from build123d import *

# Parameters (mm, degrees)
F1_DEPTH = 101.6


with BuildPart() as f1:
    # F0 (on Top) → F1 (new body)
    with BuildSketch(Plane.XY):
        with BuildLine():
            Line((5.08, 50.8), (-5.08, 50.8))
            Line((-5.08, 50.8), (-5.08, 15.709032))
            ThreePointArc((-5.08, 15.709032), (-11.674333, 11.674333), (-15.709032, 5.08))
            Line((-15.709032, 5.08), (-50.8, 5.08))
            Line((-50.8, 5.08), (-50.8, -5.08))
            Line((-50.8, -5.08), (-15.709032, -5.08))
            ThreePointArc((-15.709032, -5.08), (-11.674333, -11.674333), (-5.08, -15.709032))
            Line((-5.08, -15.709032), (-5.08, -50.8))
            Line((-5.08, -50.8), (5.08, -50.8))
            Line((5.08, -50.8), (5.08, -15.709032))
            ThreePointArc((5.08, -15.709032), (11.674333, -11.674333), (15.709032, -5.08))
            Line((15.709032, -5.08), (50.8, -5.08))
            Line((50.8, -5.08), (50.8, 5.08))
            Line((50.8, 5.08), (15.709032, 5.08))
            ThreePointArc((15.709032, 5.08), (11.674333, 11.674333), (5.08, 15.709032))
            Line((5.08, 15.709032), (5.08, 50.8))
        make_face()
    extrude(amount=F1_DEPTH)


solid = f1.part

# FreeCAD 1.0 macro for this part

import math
import FreeCAD as App
import Part
import Sketcher

V = App.Vector
Q = App.Units.Quantity

doc = App.newDocument("Part")
body = doc.addObject("PartDesign::Body", "Body")

# Sketch on XY plane
sketch1 = body.newObject("Sketcher::SketchObject", "Sketch")
sketch1.AttachmentSupport = (doc.getObject("XY_Plane"), [""])
sketch1.MapMode = "FlatFace"
sketch1.addGeometry(Part.LineSegment(V(5.08, 50.8, 0), V(-5.08, 50.8, 0)), False)
sketch1.addGeometry(Part.LineSegment(V(-5.08, 50.8, 0), V(-5.08, 15.709032, 0)), False)
sketch1.addGeometry(Part.ArcOfCircle(Part.Circle(V(-0.000003, 0.000003, 0), V(0, 0, 1), 16.509996), math.radians(107.920207), math.radians(162.079793)), False)
sketch1.addGeometry(Part.LineSegment(V(-15.709032, 5.08, 0), V(-50.8, 5.08, 0)), False)
sketch1.addGeometry(Part.LineSegment(V(-50.8, 5.08, 0), V(-50.8, -5.08, 0)), False)
sketch1.addGeometry(Part.LineSegment(V(-50.8, -5.08, 0), V(-15.709032, -5.08, 0)), False)
sketch1.addGeometry(Part.ArcOfCircle(Part.Circle(V(-0.000003, -0.000003, 0), V(0, 0, 1), 16.509996), math.radians(-162.079793), math.radians(-107.920207)), False)
sketch1.addGeometry(Part.LineSegment(V(-5.08, -15.709032, 0), V(-5.08, -50.8, 0)), False)
sketch1.addGeometry(Part.LineSegment(V(-5.08, -50.8, 0), V(5.08, -50.8, 0)), False)
sketch1.addGeometry(Part.LineSegment(V(5.08, -50.8, 0), V(5.08, -15.709032, 0)), False)
sketch1.addGeometry(Part.ArcOfCircle(Part.Circle(V(0.000003, -0.000003, 0), V(0, 0, 1), 16.509996), math.radians(-72.079793), math.radians(-17.920207)), False)
sketch1.addGeometry(Part.LineSegment(V(15.709032, -5.08, 0), V(50.8, -5.08, 0)), False)
sketch1.addGeometry(Part.LineSegment(V(50.8, -5.08, 0), V(50.8, 5.08, 0)), False)
sketch1.addGeometry(Part.LineSegment(V(50.8, 5.08, 0), V(15.709032, 5.08, 0)), False)
sketch1.addGeometry(Part.ArcOfCircle(Part.Circle(V(0.000003, 0.000003, 0), V(0, 0, 1), 16.509996), math.radians(17.920207), math.radians(72.079793)), False)
sketch1.addGeometry(Part.LineSegment(V(5.08, 15.709032, 0), V(5.08, 50.8, 0)), False)
sketch1.addConstraint(Sketcher.Constraint("Coincident", 0, 2, 1, 1))
sketch1.addConstraint(Sketcher.Constraint("Coincident", 1, 2, 2, 1))
sketch1.addConstraint(Sketcher.Constraint("Coincident", 2, 2, 3, 1))
sketch1.addConstraint(Sketcher.Constraint("Coincident", 3, 2, 4, 1))
sketch1.addConstraint(Sketcher.Constraint("Coincident", 4, 2, 5, 1))
sketch1.addConstraint(Sketcher.Constraint("Coincident", 5, 2, 6, 1))
sketch1.addConstraint(Sketcher.Constraint("Coincident", 6, 2, 7, 1))
sketch1.addConstraint(Sketcher.Constraint("Coincident", 7, 2, 8, 1))
sketch1.addConstraint(Sketcher.Constraint("Coincident", 8, 2, 9, 1))
sketch1.addConstraint(Sketcher.Constraint("Coincident", 9, 2, 10, 1))
sketch1.addConstraint(Sketcher.Constraint("Coincident", 10, 2, 11, 1))
sketch1.addConstraint(Sketcher.Constraint("Coincident", 11, 2, 12, 1))
sketch1.addConstraint(Sketcher.Constraint("Coincident", 12, 2, 13, 1))
sketch1.addConstraint(Sketcher.Constraint("Coincident", 13, 2, 14, 1))
sketch1.addConstraint(Sketcher.Constraint("Coincident", 14, 2, 15, 1))
sketch1.addConstraint(Sketcher.Constraint("Coincident", 15, 2, 0, 1))
sketch1.addConstraint(Sketcher.Constraint("Horizontal", 0))
sketch1.addConstraint(Sketcher.Constraint("Vertical", 1))
sketch1.addConstraint(Sketcher.Constraint("Horizontal", 3))
sketch1.addConstraint(Sketcher.Constraint("Vertical", 4))
sketch1.addConstraint(Sketcher.Constraint("Horizontal", 5))
sketch1.addConstraint(Sketcher.Constraint("Vertical", 7))
sketch1.addConstraint(Sketcher.Constraint("Horizontal", 8))
sketch1.addConstraint(Sketcher.Constraint("Vertical", 9))
sketch1.addConstraint(Sketcher.Constraint("Horizontal", 11))
sketch1.addConstraint(Sketcher.Constraint("Vertical", 12))
sketch1.addConstraint(Sketcher.Constraint("Horizontal", 13))
sketch1.addConstraint(Sketcher.Constraint("Vertical", 15))
sketch1.addConstraint(Sketcher.Constraint("Coincident", 2, 3, -1, 1))
sketch1.addConstraint(Sketcher.Constraint("Coincident", 6, 3, -1, 1))
sketch1.addConstraint(Sketcher.Constraint("Coincident", 10, 3, -1, 1))
sketch1.addConstraint(Sketcher.Constraint("Coincident", 14, 3, -1, 1))
sketch1.addConstraint(Sketcher.Constraint("Equal", 2, 6))
sketch1.addConstraint(Sketcher.Constraint("Equal", 6, 10))
sketch1.addConstraint(Sketcher.Constraint("Equal", 10, 14))
sketch1.addConstraint(Sketcher.Constraint("Symmetric", 0, 2, 8, 2, -1, 1))
sketch1.addConstraint(Sketcher.Constraint("Symmetric", 3, 2, 11, 2, -1, 1))
sketch1.addConstraint(Sketcher.Constraint("Horizontal", 6, 2, 9, 2))
sketch1.addConstraint(Sketcher.Constraint("Horizontal", 5, 2, 10, 2))
sketch1.addConstraint(Sketcher.Constraint("Horizontal", 3, 2, 12, 2))
sketch1.addConstraint(Sketcher.Constraint("Horizontal", 1, 2, 14, 2))
sketch1.addConstraint(Sketcher.Constraint("Equal", 13, 1))
sketch1.addConstraint(Sketcher.Constraint("Equal", 8, 4))
sketch1.addConstraint(Sketcher.Constraint("Radius", 2, Q("0.6499998 in")))
sketch1.addConstraint(Sketcher.Constraint("DistanceX", 0, 2, 0, 1, Q("0.4 in")))
sketch1.addConstraint(Sketcher.Constraint("DistanceY", -1, 1, 0, 2, Q("2 in")))
pad1 = body.newObject("PartDesign::Pad", "Pad")
pad1.Profile = sketch1
pad1.Length = Q("4 in")

doc.recompute()
